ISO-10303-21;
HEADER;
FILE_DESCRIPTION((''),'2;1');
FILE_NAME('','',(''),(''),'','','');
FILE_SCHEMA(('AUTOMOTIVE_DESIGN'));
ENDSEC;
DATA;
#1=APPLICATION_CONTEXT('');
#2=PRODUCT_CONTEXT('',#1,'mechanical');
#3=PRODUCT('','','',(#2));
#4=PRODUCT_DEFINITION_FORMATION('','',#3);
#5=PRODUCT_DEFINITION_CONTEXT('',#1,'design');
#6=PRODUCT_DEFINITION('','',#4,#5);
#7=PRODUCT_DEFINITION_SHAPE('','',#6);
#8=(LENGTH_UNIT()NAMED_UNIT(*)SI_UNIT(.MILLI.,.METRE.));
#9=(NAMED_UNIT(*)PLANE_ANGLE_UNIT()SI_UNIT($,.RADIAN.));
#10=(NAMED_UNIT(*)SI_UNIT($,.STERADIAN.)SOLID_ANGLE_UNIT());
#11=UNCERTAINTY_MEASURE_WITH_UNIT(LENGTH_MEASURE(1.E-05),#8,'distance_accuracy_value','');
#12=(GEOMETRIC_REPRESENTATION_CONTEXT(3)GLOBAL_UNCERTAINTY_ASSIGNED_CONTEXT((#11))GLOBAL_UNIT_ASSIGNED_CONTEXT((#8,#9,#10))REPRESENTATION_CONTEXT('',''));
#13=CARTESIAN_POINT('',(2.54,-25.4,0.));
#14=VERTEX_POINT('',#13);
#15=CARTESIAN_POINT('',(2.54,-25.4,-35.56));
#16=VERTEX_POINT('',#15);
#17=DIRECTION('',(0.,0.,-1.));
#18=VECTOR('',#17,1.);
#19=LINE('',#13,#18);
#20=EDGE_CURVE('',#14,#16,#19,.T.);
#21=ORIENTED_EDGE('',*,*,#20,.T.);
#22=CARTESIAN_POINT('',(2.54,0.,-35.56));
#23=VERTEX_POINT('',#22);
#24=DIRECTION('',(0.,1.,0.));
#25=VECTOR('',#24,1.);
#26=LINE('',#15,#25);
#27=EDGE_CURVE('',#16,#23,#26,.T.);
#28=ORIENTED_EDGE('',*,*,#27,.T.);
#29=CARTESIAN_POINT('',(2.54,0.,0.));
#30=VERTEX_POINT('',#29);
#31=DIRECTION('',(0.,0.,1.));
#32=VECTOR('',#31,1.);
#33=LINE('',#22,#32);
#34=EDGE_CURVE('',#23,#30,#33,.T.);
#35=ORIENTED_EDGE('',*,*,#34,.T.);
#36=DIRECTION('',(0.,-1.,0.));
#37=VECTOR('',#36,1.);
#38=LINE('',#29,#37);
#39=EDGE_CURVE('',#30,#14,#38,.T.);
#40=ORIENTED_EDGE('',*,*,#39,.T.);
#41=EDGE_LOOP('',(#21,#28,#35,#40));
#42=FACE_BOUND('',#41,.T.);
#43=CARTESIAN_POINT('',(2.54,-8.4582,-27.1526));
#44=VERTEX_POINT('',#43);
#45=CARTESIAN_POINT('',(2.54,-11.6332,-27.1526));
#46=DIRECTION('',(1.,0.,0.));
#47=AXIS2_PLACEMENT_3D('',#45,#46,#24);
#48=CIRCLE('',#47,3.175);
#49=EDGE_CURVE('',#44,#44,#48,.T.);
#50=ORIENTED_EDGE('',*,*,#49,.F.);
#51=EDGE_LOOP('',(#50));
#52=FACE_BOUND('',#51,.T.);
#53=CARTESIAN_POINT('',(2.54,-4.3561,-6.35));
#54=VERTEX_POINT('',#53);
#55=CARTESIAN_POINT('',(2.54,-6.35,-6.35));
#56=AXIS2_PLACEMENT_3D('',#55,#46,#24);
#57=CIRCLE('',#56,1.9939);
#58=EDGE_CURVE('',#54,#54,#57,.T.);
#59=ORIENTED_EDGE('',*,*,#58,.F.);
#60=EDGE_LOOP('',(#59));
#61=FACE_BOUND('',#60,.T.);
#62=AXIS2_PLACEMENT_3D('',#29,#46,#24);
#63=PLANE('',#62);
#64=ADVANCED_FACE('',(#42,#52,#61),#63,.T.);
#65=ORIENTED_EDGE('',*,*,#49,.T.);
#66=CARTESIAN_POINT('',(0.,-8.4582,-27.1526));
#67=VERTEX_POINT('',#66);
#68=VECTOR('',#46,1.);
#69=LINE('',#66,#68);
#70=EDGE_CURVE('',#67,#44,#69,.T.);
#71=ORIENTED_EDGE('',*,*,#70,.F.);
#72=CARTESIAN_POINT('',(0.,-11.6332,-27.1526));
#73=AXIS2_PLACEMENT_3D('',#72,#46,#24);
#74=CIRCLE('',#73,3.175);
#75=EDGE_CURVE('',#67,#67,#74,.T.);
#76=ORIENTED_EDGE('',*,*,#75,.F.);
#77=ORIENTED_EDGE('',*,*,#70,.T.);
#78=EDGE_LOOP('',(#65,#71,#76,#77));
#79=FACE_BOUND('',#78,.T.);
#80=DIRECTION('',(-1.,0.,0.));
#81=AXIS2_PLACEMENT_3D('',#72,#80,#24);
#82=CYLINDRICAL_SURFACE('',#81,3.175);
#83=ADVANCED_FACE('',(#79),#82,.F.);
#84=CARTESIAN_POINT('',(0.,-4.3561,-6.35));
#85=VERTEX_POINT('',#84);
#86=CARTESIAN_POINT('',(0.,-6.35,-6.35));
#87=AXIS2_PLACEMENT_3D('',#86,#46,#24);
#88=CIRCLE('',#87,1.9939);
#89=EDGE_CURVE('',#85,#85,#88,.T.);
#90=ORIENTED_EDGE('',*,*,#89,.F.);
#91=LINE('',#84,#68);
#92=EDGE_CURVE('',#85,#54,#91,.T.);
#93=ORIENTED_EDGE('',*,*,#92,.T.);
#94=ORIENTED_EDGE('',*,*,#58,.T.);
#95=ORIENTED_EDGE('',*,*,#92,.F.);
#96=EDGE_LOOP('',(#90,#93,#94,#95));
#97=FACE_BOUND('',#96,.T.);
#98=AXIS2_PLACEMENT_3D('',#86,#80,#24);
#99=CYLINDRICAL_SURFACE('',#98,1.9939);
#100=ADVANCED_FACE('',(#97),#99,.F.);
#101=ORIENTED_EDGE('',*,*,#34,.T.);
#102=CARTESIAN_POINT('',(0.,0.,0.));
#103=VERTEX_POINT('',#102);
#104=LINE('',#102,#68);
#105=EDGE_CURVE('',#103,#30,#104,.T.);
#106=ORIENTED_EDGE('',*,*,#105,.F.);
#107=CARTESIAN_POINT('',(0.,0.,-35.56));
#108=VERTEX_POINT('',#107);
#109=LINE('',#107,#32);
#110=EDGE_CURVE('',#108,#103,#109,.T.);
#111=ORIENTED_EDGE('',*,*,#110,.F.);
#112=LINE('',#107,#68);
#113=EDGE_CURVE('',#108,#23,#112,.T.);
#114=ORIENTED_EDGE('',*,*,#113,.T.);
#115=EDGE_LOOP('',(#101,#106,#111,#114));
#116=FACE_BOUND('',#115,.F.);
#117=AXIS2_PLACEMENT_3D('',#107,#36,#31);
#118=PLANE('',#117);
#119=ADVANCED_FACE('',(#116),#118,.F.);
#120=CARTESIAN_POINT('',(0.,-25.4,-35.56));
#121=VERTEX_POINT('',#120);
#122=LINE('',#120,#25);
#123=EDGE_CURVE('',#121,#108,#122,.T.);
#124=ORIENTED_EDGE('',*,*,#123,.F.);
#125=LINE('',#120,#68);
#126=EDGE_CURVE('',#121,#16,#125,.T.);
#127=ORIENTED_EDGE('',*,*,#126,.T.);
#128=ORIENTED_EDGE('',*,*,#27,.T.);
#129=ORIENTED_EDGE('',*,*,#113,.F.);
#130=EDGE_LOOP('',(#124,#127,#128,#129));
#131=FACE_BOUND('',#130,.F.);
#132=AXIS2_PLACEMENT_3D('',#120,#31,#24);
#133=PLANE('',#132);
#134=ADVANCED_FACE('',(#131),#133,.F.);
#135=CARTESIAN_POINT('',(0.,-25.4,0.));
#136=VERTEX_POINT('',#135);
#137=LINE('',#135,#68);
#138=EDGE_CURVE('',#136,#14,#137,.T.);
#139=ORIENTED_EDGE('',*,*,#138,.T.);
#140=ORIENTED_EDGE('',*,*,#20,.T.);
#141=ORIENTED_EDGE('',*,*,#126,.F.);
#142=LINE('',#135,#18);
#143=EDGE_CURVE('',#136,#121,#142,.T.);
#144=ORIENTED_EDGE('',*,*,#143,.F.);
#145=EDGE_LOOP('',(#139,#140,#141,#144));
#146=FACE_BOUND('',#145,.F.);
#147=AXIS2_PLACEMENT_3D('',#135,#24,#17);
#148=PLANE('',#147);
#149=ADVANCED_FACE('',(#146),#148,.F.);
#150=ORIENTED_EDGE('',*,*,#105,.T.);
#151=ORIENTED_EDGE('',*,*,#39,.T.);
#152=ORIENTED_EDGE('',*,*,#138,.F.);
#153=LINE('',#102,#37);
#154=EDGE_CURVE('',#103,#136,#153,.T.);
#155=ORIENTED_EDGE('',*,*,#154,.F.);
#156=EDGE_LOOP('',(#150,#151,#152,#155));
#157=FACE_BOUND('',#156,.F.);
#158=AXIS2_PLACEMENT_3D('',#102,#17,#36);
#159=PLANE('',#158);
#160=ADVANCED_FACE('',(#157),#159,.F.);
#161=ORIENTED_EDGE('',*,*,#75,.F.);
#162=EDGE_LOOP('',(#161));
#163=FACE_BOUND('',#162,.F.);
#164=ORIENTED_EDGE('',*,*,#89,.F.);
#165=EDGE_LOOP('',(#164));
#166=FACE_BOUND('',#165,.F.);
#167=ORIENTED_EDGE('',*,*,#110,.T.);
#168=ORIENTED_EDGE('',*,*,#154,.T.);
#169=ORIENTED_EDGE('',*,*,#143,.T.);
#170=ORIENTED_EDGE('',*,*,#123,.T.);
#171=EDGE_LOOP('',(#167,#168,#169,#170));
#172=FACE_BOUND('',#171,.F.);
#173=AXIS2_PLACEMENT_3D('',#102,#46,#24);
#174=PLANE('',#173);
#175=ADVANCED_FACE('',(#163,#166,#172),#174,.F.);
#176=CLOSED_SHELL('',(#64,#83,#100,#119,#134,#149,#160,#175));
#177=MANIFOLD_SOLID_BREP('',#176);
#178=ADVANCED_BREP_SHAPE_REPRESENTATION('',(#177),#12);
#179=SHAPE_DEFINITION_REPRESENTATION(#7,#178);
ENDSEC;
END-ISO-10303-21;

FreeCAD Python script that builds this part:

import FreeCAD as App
import Part
import Sketcher
from FreeCAD import Vector
Q = App.Units.Quantity


def add_polygon(sketch, points):
    """Adds a closed chain of lines whose ends are joined by coincident constraints."""
    first, n = sketch.GeometryCount, len(points)
    for a, b in zip(points, points[1:] + points[:1]):
        sketch.addGeometry(Part.LineSegment(App.Vector(*a, 0), App.Vector(*b, 0)), False)
    for i in range(n):
        sketch.addConstraint(Sketcher.Constraint("Coincident", first + i, 2, first + (i + 1) % n, 1))

doc = App.newDocument("Part")
params = doc.addObject("Spreadsheet::Sheet", "Params")
for row, (alias, value) in enumerate([
    ("sketch1_diameter", "0.25 in"),
    ("sketch1_width", "1 in"),
    ("sketch1_diameter2", "0.157 in"),
    ("sketch1_height", "1.4 in"),
    ("pad1_length", "0.1 in"),
], start=1):
    params.set(f"A{row}", alias)
    params.set(f"B{row}", "=" + value)
    params.setAlias(f"B{row}", alias)

body = doc.addObject("PartDesign::Body", "Body")

sketch1 = body.newObject("Sketcher::SketchObject", "Sketch")
sketch1.AttachmentSupport = (doc.getObject("YZ_Plane"), [""])
sketch1.MapMode = "FlatFace"
add_polygon(sketch1, [(0, -35.56), (0, 0), (-25.4, 0), (-25.4, -35.56)])
sketch1.addGeometry(Part.Circle(Vector(-11.6332, -27.1526, 0), Vector(0, 0, 1), 3.175), False)
sketch1.addGeometry(Part.Circle(Vector(-6.35, -6.35, 0), Vector(0, 0, 1), 1.9939), False)
sketch1.addConstraint([
    Sketcher.Constraint("Vertical", 0),
    Sketcher.Constraint("Horizontal", 1),
    Sketcher.Constraint("Vertical", 2),
    Sketcher.Constraint("Horizontal", 3),
    Sketcher.Constraint("Coincident", 0, 2, -1, 1),
    Sketcher.Constraint("Diameter", 4, Q("0.25 in")),
    Sketcher.Constraint("DistanceX", 1, 2, 1, 1, Q("1 in")),
    Sketcher.Constraint("Diameter", 5, Q("0.157 in")),
    Sketcher.Constraint("DistanceY", 0, 1, 0, 2, Q("1.4 in")),
    Sketcher.Constraint("DistanceX", 5, 3, -1, 1, Q("0.25 in")),
    Sketcher.Constraint("DistanceY", 5, 3, -1, 1, Q("0.25 in")),
    Sketcher.Constraint("DistanceX", 4, 3, -1, 1, Q("0.458 in")),
    Sketcher.Constraint("DistanceY", 4, 3, -1, 1, Q("1.069 in")),
])
sketch1.setExpression("Constraints[9]", "Params.sketch1_diameter")
sketch1.setExpression("Constraints[10]", "Params.sketch1_width")
sketch1.setExpression("Constraints[11]", "Params.sketch1_diameter2")
sketch1.setExpression("Constraints[12]", "Params.sketch1_height")
pad1 = body.newObject("PartDesign::Pad", "Pad")
pad1.Profile = sketch1
pad1.setExpression("Length", "Params.pad1_length")

doc.recompute()
